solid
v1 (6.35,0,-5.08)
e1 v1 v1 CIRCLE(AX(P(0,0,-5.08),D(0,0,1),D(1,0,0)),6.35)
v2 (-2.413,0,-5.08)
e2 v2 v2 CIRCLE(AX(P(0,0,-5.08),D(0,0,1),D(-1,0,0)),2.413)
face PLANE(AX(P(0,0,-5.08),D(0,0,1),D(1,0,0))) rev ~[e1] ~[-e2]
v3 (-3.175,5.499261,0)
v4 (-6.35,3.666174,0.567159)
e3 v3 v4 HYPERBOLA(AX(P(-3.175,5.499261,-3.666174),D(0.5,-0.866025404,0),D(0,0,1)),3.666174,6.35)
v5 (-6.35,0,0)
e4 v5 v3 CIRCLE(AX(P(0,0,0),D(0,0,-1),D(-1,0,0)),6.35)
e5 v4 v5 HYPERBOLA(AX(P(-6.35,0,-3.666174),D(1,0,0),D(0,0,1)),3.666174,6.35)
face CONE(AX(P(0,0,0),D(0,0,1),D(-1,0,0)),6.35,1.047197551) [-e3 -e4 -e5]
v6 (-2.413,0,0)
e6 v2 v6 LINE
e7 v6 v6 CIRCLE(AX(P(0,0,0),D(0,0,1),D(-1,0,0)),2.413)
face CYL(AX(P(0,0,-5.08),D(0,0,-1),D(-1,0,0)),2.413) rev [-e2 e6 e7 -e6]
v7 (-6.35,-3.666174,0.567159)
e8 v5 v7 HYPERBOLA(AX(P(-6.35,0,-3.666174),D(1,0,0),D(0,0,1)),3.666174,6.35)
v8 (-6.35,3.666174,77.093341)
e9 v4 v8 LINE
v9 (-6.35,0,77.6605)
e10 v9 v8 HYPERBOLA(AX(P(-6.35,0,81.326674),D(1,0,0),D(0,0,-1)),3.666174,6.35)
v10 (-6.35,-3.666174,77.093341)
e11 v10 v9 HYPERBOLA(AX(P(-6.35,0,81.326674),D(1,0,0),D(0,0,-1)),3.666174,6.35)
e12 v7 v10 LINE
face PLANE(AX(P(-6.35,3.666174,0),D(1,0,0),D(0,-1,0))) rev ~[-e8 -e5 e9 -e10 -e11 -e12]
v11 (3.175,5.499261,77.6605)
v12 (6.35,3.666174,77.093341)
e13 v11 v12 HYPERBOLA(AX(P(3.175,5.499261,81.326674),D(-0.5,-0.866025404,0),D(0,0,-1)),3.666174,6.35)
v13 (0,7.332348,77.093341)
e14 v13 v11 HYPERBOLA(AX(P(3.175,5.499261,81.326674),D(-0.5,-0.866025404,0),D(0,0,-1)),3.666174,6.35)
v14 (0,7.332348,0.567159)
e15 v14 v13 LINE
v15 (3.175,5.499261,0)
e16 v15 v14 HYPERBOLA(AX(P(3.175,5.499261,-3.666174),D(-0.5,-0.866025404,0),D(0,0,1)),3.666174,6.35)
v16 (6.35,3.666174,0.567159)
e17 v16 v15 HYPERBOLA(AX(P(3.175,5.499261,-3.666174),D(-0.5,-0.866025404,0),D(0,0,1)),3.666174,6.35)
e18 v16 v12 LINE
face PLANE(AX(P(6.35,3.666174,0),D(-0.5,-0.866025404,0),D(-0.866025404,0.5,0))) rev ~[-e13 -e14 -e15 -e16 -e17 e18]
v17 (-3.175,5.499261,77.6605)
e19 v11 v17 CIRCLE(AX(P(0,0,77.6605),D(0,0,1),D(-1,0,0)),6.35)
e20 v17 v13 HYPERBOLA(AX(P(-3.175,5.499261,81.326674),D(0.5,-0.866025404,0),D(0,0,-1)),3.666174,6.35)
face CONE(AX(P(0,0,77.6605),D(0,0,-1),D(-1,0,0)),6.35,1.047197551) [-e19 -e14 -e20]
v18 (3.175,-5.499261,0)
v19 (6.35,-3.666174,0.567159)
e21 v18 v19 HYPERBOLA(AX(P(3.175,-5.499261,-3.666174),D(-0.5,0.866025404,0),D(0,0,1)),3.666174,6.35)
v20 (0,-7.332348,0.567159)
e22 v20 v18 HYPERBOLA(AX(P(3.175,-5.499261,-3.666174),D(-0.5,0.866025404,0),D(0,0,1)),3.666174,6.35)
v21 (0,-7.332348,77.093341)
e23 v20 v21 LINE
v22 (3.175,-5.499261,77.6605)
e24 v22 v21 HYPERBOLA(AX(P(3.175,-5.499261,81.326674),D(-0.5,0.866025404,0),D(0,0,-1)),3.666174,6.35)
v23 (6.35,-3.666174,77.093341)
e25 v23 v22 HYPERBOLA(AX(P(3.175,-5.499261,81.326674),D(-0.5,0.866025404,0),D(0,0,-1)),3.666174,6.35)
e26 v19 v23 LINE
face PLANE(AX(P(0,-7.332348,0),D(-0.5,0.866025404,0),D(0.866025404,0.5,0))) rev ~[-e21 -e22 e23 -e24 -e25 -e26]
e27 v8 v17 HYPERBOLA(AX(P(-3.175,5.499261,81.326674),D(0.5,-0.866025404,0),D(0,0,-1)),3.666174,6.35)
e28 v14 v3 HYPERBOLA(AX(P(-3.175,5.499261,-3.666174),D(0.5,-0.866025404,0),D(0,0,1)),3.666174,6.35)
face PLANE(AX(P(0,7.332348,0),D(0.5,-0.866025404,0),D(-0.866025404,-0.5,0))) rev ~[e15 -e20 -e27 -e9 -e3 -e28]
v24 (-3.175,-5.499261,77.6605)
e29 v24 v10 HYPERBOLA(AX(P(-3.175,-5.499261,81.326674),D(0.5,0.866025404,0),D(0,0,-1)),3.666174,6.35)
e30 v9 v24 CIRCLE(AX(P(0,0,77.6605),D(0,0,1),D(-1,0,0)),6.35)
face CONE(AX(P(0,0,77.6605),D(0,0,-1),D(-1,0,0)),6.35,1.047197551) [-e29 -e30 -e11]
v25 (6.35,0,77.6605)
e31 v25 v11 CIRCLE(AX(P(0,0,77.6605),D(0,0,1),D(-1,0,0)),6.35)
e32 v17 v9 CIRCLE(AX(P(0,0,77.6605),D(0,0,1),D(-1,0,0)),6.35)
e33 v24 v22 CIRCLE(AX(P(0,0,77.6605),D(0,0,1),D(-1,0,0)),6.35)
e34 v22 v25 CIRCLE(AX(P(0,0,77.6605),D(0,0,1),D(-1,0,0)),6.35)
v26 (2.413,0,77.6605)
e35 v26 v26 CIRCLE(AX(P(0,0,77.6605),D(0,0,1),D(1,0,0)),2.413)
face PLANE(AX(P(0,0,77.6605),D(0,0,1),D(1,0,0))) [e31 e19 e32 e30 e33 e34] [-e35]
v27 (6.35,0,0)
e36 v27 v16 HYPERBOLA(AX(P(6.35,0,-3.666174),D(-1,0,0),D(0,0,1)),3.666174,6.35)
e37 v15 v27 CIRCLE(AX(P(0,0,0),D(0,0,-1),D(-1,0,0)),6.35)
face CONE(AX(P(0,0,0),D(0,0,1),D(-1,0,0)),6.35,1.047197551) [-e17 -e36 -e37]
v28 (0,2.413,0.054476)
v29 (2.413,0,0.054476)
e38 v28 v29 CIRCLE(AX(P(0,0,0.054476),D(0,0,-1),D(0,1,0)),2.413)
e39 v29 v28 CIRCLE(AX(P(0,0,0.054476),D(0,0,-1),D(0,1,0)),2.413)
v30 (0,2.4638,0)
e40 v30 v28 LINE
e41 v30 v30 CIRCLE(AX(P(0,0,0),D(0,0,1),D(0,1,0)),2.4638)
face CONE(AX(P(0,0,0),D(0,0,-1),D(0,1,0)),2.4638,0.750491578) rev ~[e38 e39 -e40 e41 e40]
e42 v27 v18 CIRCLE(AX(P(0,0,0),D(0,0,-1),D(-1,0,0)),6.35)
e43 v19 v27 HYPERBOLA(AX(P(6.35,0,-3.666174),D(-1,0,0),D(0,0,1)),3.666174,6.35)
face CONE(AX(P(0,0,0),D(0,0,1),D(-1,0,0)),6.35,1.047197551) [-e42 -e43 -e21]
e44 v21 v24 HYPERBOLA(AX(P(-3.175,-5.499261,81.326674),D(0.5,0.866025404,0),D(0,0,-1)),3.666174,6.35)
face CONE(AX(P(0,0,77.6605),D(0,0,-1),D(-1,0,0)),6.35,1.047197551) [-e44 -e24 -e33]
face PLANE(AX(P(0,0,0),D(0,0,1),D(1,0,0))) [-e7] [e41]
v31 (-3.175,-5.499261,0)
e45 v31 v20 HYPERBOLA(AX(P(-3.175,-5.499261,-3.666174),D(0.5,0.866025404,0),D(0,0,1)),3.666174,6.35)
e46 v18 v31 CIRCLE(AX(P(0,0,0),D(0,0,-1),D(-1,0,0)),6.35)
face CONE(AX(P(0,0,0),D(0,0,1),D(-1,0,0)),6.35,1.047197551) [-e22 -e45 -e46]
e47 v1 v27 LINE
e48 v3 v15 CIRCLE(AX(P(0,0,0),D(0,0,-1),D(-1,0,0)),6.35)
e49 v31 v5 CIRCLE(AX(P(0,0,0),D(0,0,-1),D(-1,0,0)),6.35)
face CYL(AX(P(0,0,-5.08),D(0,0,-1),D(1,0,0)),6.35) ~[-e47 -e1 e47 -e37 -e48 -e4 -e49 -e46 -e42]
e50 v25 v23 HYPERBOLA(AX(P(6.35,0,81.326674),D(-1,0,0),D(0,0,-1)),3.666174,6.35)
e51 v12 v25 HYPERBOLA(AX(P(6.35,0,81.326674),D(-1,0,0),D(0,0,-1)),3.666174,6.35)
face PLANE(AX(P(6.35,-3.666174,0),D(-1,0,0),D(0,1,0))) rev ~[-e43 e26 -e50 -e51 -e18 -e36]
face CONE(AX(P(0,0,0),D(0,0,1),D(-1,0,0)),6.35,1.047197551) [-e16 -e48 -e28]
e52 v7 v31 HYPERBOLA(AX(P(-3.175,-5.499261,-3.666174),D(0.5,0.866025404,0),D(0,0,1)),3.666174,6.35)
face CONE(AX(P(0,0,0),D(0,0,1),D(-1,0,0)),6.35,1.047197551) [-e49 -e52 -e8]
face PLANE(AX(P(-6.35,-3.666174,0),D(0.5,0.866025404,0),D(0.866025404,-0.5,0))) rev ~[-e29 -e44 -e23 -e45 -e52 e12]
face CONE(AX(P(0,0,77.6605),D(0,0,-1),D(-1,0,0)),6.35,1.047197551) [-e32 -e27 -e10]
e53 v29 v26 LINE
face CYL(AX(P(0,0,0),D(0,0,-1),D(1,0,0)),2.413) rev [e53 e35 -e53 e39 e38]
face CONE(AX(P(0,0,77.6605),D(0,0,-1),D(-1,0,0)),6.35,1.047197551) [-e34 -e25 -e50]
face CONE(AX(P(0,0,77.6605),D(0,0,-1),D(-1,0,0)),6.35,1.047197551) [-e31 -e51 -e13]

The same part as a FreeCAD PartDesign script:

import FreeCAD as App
import Part
import Sketcher
Q = App.Units.Quantity


def faces_at(feature, points):
    """Names of the faces that lie closest to the given points."""
    faces = feature.Shape.Faces
    near = lambda p: min(range(len(faces)), key=lambda i: faces[i].distToShape(Part.Vertex(*p))[0])
    return sorted({f"Face{near(p) + 1}" for p in points})


def add_polygon(sketch, points):
    """Adds a closed chain of lines whose ends are joined by coincident constraints."""
    first, n = sketch.GeometryCount, len(points)
    for a, b in zip(points, points[1:] + points[:1]):
        sketch.addGeometry(Part.LineSegment(App.Vector(*a, 0), App.Vector(*b, 0)), False)
    for i in range(n):
        sketch.addConstraint(Sketcher.Constraint("Coincident", first + i, 2, first + (i + 1) % n, 1))

doc = App.newDocument("Part")
params = doc.addObject("Spreadsheet::Sheet", "Params")
for row, (alias, value) in enumerate([
    ("sketch1_diameter", "0.19 in"),
    ("pad1_length", "3.0575 in"),
    ("sketch2_width", "0.097 in"),
    ("groove_angle", "360 deg"),
    ("sketch3_diameter", "0.5 in"),
    ("pad2_length", "79.263907 mm"),
    ("draft_angle", "60 deg"),
    ("sketch4_diameter", "0.5 in"),
    ("pad3_length", "79.263907 mm"),
    ("draft2_angle", "60 deg"),
    ("sketch5_diameter", "0.5 in"),
    ("sketch5_diameter2", "0.19 in"),
    ("pad4_length", "0.2 in"),
], start=1):
    params.set(f"A{row}", alias)
    params.set(f"B{row}", "=" + value)
    params.setAlias(f"B{row}", alias)

body = doc.addObject("PartDesign::Body", "Body")

sketch1 = body.newObject("Sketcher::SketchObject", "Sketch")
sketch1.AttachmentSupport = (doc.getObject("XY_Plane"), [""])
sketch1.MapMode = "FlatFace"
add_polygon(sketch1, [(0, 7.3), (-6.3, 3.7), (-6.3, -3.7), (0, -7.3), (6.3, -3.7), (6.3, 3.7)])
sketch1.addGeometry(Part.Circle(App.Vector(0, 0, 0), App.Vector(0, 0, 1), 2.4), False)
sketch1.addConstraint(Sketcher.Constraint("Vertical", 1))
sketch1.addConstraint(Sketcher.Constraint("Vertical", 4))
sketch1.addConstraint(Sketcher.Constraint("Coincident", 6, 3, -1, 1))
sketch1.addConstraint(Sketcher.Constraint("Symmetric", 0, 2, 3, 2, -1, 1))
sketch1.addConstraint(Sketcher.Constraint("Symmetric", 2, 2, 5, 2, -1, 1))
sketch1.addConstraint(Sketcher.Constraint("PointOnObject", 2, 2, -2))
sketch1.addConstraint(Sketcher.Constraint("Parallel", 2, 5))
sketch1.addConstraint(Sketcher.Constraint("Horizontal", 1, 2, 3, 2))
sketch1.addConstraint(Sketcher.Constraint("Diameter", 6, Q("0.19 in")))
sketch1.addConstraint(Sketcher.Constraint("Angle", 0, Q("-150 deg")))
sketch1.addConstraint(Sketcher.Constraint("DistanceX", 1, 2, 3, 2, Q("0.5 in")))
sketch1.addConstraint(Sketcher.Constraint("DistanceY", 1, 2, 1, 1, Q("7.332348 mm")))
sketch1.setExpression("Constraints[14]", "Params.sketch1_diameter")
pad1 = body.newObject("PartDesign::Pad", "Pad")
pad1.Profile = sketch1
pad1.setExpression("Length", "Params.pad1_length")

sketch2 = body.newObject("Sketcher::SketchObject", "Sketch001")
sketch2.AttachmentSupport = (doc.getObject("YZ_Plane"), [""])
sketch2.MapMode = "FlatFace"
add_polygon(sketch2, [(0, 0), (2.5, 0), (0, 2.6)])
sketch2.addConstraint(Sketcher.Constraint("Horizontal", 0))
sketch2.addConstraint(Sketcher.Constraint("Vertical", 2))
sketch2.addConstraint(Sketcher.Constraint("Coincident", 2, 2, -1, 1))
sketch2.addConstraint(Sketcher.Constraint("Angle", 1, Q("133 deg")))
sketch2.addConstraint(Sketcher.Constraint("DistanceX", 0, 1, 0, 2, Q("0.097 in")))
sketch2.setExpression("Constraints[7]", "Params.sketch2_width")
groove = body.newObject("PartDesign::Groove", "Groove")
groove.Profile = sketch2
groove.ReferenceAxis = (sketch2, ["V_Axis"])
groove.setExpression("Angle", "Params.groove_angle")
body2 = doc.addObject("PartDesign::Body", "Body001")

sketch3 = body2.newObject("Sketcher::SketchObject", "Sketch002")
sketch3.AttachmentSupport = (doc.getObject("XY_Plane001"), [""])
sketch3.MapMode = "FlatFace"
add_polygon(sketch3, [(153, 154), (153, -154), (-153, -154), (-153, 154)])
sketch3.addGeometry(Part.Circle(App.Vector(0, 0, 0), App.Vector(0, 0, 1), 6), False)
sketch3.addConstraint(Sketcher.Constraint("Vertical", 0))
sketch3.addConstraint(Sketcher.Constraint("Horizontal", 1))
sketch3.addConstraint(Sketcher.Constraint("Vertical", 2))
sketch3.addConstraint(Sketcher.Constraint("Horizontal", 3))
sketch3.addConstraint(Sketcher.Constraint("Coincident", 4, 3, -1, 1))
sketch3.addConstraint(Sketcher.Constraint("Symmetric", 0, 2, 2, 2, -1, 1))
sketch3.addConstraint(Sketcher.Constraint("Diameter", 4, Q("0.5 in")))
sketch3.addConstraint(Sketcher.Constraint("DistanceX", 1, 2, 1, 1, Q("305.288 mm")))
sketch3.addConstraint(Sketcher.Constraint("DistanceY", 0, 2, 0, 1, Q("307.252 mm")))
sketch3.setExpression("Constraints[10]", "Params.sketch3_diameter")
pad2 = body2.newObject("PartDesign::Pad", "Pad001")
pad2.Profile = sketch3
pad2.setExpression("Length", "Params.pad2_length")
doc.recompute()

draft = body2.newObject("PartDesign::Draft", "Draft")
draft.Base = (pad2, faces_at(pad2, [
    (0, -153.626, 39.632),
    (-152.644, 0, 39.632),
    (0, 153.626, 39.632),
    (152.644, 0, 39.632),
    (6.35, 0, 39.632),
]))
draft.NeutralPlane = (doc.getObject("XY_Plane001"), [""])
draft.setExpression("Angle", "Params.draft_angle")
draft.Reversed = False
doc.recompute()

boolean = body.newObject("PartDesign::Boolean", "Boolean")
boolean.Type = "Cut"
boolean.addObjects([body2])
body3 = doc.addObject("PartDesign::Body", "Body002")

sketch4 = body3.newObject("Sketcher::SketchObject", "Sketch003")
sketch4.AttachmentSupport = (doc.getObject("XY_Plane002"), [""])
sketch4.MapMode = "FlatFace"
sketch4.AttachmentOffset = App.Placement(App.Vector(0, 0, 3.0575 * 25.4), App.Rotation())
add_polygon(sketch4, [(153, -154), (153, 154), (-153, 154), (-153, -154)])
sketch4.addGeometry(Part.Circle(App.Vector(0, 0, 0), App.Vector(0, 0, 1), 6), False)
sketch4.addConstraint(Sketcher.Constraint("Vertical", 0))
sketch4.addConstraint(Sketcher.Constraint("Horizontal", 1))
sketch4.addConstraint(Sketcher.Constraint("Vertical", 2))
sketch4.addConstraint(Sketcher.Constraint("Horizontal", 3))
sketch4.addConstraint(Sketcher.Constraint("Coincident", 4, 3, -1, 1))
sketch4.addConstraint(Sketcher.Constraint("Symmetric", 0, 2, 2, 2, -1, 1))
sketch4.addConstraint(Sketcher.Constraint("Diameter", 4, Q("0.5 in")))
sketch4.addConstraint(Sketcher.Constraint("DistanceX", 1, 2, 1, 1, Q("305.288 mm")))
sketch4.addConstraint(Sketcher.Constraint("DistanceY", 0, 1, 0, 2, Q("307.252 mm")))
sketch4.setExpression("Constraints[10]", "Params.sketch4_diameter")
pad3 = body3.newObject("PartDesign::Pad", "Pad002")
pad3.Profile = sketch4
pad3.setExpression("Length", "Params.pad3_length")
pad3.Reversed = True
doc.recompute()

datumplane = body3.newObject("PartDesign::Plane", "DatumPlane")
datumplane.AttachmentSupport = (doc.getObject("XY_Plane002"), [""])
datumplane.MapMode = "FlatFace"
datumplane.AttachmentOffset = App.Placement(App.Vector(0, 0, 3.0575 * 25.4), App.Rotation())
draft2 = body3.newObject("PartDesign::Draft", "Draft001")
draft2.Base = (pad3, faces_at(pad3, [
    (0, -153.626, 38.029),
    (-152.644, 0, 38.029),
    (0, 153.626, 38.029),
    (152.644, 0, 38.029),
    (6.35, 0, 38.029),
]))
draft2.NeutralPlane = (datumplane, [""])
draft2.setExpression("Angle", "Params.draft2_angle")
draft2.Reversed = True
doc.recompute()

boolean2 = body.newObject("PartDesign::Boolean", "Boolean001")
boolean2.Type = "Cut"
boolean2.addObjects([body3])

sketch5 = body.newObject("Sketcher::SketchObject", "Sketch004")
sketch5.AttachmentSupport = (doc.getObject("XY_Plane"), [""])
sketch5.MapMode = "FlatFace"
sketch5.AttachmentOffset = App.Placement(App.Vector(0, 0, -0.2 * 25.4), App.Rotation())
sketch5.addGeometry(Part.Circle(App.Vector(0, 0, 0), App.Vector(0, 0, 1), 6.3), False)
sketch5.addGeometry(Part.Circle(App.Vector(0, 0, 0), App.Vector(0, 0, 1), 2.4), False)
sketch5.addConstraint(Sketcher.Constraint("Coincident", 0, 3, -1, 1))
sketch5.addConstraint(Sketcher.Constraint("Coincident", 1, 3, -1, 1))
sketch5.addConstraint(Sketcher.Constraint("Diameter", 0, Q("0.5 in")))
sketch5.addConstraint(Sketcher.Constraint("Diameter", 1, Q("0.19 in")))
sketch5.setExpression("Constraints[2]", "Params.sketch5_diameter")
sketch5.setExpression("Constraints[3]", "Params.sketch5_diameter2")
pad4 = body.newObject("PartDesign::Pad", "Pad003")
pad4.Profile = sketch5
pad4.setExpression("Length", "Params.pad4_length")

doc.recompute()
